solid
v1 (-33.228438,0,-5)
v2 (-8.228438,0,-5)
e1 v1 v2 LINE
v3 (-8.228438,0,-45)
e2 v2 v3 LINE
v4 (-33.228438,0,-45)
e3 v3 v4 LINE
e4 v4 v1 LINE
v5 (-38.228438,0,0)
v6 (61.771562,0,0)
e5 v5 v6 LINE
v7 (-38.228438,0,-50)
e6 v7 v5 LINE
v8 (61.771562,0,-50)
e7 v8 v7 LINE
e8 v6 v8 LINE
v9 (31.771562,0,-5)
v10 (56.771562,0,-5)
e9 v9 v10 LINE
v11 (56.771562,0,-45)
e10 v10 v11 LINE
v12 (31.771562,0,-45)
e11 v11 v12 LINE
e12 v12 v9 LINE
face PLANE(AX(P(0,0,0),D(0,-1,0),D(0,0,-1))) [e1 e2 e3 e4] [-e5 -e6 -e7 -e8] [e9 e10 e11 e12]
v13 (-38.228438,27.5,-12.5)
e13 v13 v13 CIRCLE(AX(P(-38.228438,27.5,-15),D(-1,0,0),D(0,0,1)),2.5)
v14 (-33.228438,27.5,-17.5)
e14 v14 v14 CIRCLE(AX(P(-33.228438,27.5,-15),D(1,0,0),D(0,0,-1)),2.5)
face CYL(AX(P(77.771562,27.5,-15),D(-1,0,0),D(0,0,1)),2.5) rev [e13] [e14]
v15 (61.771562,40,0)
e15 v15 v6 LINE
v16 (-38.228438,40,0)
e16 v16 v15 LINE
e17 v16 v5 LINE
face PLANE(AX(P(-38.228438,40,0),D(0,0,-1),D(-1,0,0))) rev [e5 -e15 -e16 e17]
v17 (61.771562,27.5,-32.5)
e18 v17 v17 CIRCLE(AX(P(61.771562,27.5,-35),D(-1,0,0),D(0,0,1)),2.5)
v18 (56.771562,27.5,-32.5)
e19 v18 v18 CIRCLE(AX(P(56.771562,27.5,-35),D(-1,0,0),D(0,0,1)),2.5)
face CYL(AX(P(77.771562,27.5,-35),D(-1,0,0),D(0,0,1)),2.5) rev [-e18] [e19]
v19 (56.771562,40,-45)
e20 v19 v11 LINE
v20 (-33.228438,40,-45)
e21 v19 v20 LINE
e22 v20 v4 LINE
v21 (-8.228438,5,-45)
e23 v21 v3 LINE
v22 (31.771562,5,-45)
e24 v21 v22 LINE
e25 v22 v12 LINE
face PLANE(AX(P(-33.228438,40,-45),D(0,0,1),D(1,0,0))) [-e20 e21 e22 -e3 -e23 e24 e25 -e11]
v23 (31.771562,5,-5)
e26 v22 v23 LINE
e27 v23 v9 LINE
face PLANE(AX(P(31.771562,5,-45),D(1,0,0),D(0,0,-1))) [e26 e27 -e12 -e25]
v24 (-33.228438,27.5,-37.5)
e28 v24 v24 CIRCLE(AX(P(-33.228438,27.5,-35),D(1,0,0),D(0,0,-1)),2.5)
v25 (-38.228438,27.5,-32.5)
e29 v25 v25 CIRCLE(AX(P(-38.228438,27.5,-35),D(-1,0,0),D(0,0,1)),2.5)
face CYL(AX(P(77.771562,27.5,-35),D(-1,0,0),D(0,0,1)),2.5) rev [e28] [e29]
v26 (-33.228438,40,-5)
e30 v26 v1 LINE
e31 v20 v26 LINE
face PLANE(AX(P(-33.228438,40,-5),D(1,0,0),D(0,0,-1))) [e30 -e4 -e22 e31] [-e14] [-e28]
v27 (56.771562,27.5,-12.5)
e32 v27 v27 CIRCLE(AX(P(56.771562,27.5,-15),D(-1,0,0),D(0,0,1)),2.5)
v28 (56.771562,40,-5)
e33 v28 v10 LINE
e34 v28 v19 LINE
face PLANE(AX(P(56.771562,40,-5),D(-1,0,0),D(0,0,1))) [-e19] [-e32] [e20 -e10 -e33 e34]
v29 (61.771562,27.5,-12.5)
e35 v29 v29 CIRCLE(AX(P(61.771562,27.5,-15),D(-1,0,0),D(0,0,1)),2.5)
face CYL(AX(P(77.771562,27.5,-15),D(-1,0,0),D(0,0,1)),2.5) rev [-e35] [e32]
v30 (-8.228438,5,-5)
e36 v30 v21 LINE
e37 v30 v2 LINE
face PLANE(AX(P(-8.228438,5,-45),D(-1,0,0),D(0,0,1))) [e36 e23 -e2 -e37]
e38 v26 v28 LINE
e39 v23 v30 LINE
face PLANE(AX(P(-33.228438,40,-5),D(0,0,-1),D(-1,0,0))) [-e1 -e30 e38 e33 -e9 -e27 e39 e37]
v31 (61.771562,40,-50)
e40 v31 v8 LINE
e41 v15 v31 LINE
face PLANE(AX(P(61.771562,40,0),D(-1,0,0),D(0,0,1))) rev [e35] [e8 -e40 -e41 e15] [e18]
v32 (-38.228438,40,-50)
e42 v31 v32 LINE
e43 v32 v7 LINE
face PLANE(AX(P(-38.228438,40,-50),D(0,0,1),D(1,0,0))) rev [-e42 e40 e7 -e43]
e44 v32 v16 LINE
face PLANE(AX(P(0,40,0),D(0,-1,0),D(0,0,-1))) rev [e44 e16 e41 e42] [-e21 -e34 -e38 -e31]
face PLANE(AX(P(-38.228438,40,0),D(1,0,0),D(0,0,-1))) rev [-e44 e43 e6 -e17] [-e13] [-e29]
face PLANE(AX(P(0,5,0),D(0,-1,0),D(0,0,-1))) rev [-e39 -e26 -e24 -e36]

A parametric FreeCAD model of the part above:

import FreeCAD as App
import Part
import Sketcher
Q = App.Units.Quantity

doc = App.newDocument("Part")
body = doc.addObject("PartDesign::Body", "Body")

sketch1 = body.newObject("Sketcher::SketchObject", "Sketch")
sketch1.AttachmentSupport = (doc.getObject("XZ_Plane"), [""])
sketch1.MapMode = "FlatFace"
sketch1.addGeometry([
    Part.LineSegment(App.Vector(-38, -50, 0), App.Vector(-38, 0, 0)),
    Part.LineSegment(App.Vector(-38, 0, 0), App.Vector(62, 0, 0)),
    Part.LineSegment(App.Vector(62, 0, 0), App.Vector(62, -50, 0)),
    Part.LineSegment(App.Vector(62, -50, 0), App.Vector(-38, -50, 0)),
    Part.LineSegment(App.Vector(57, -5, 0), App.Vector(-33, -5, 0)),
    Part.LineSegment(App.Vector(-33, -5, 0), App.Vector(-33, -45, 0)),
    Part.LineSegment(App.Vector(-33, -45, 0), App.Vector(57, -45, 0)),
    Part.LineSegment(App.Vector(57, -45, 0), App.Vector(57, -5, 0)),
], False)
sketch1.addConstraint([
    Sketcher.Constraint("Coincident", 0, 2, 1, 1),
    Sketcher.Constraint("Coincident", 1, 2, 2, 1),
    Sketcher.Constraint("Coincident", 2, 2, 3, 1),
    Sketcher.Constraint("Coincident", 3, 2, 0, 1),
    Sketcher.Constraint("Coincident", 4, 2, 5, 1),
    Sketcher.Constraint("Coincident", 5, 2, 6, 1),
    Sketcher.Constraint("Coincident", 6, 2, 7, 1),
    Sketcher.Constraint("Coincident", 7, 2, 4, 1),
    Sketcher.Constraint("Vertical", 0),
    Sketcher.Constraint("Horizontal", 1),
    Sketcher.Constraint("Vertical", 2),
    Sketcher.Constraint("Horizontal", 3),
    Sketcher.Constraint("Horizontal", 4),
    Sketcher.Constraint("Vertical", 5),
    Sketcher.Constraint("Horizontal", 6),
    Sketcher.Constraint("Vertical", 7),
    Sketcher.Constraint("PointOnObject", 0, 2, -1),
    Sketcher.Constraint("DistanceX", 1, 1, 1, 2, Q("100 mm")),
    Sketcher.Constraint("DistanceX", 4, 2, 4, 1, Q("90 mm")),
    Sketcher.Constraint("DistanceY", 0, 1, 0, 2, Q("50 mm")),
    Sketcher.Constraint("DistanceY", 5, 2, 5, 1, Q("40 mm")),
    Sketcher.Constraint("DistanceY", 4, 2, -1, 1, Q("5 mm")),
    Sketcher.Constraint("DistanceX", 0, 2, 4, 2, Q("5 mm")),
    Sketcher.Constraint("DistanceX", 0, 2, -1, 1, Q("38.228438 mm")),
])
pad1 = body.newObject("PartDesign::Pad", "Pad")
pad1.Profile = sketch1
pad1.Length = 40
pad1.Reversed = True

sketch2 = body.newObject("Sketcher::SketchObject", "Sketch001")
sketch2.AttachmentSupport = (doc.getObject("XZ_Plane"), [""])
sketch2.MapMode = "FlatFace"
sketch2.addGeometry([
    Part.LineSegment(App.Vector(32, -45, 0), App.Vector(32, -5, 0)),
    Part.LineSegment(App.Vector(32, -5, 0), App.Vector(-8, -5, 0)),
    Part.LineSegment(App.Vector(-8, -5, 0), App.Vector(-8, -45, 0)),
    Part.LineSegment(App.Vector(-8, -45, 0), App.Vector(32, -45, 0)),
], False)
sketch2.addConstraint([
    Sketcher.Constraint("Coincident", 0, 2, 1, 1),
    Sketcher.Constraint("Coincident", 1, 2, 2, 1),
    Sketcher.Constraint("Coincident", 2, 2, 3, 1),
    Sketcher.Constraint("Coincident", 3, 2, 0, 1),
    Sketcher.Constraint("Vertical", 0),
    Sketcher.Constraint("Horizontal", 1),
    Sketcher.Constraint("Vertical", 2),
    Sketcher.Constraint("Horizontal", 3),
    Sketcher.Constraint("Equal", 3, 0),
    Sketcher.Constraint("DistanceX", 1, 2, 1, 1, Q("40 mm")),
    Sketcher.Constraint("DistanceY", 0, 2, -1, 1, Q("5 mm")),
    Sketcher.Constraint("DistanceX", -1, 1, 0, 2, Q("31.771562 mm")),
])
pad2 = body.newObject("PartDesign::Pad", "Pad001")
pad2.Profile = sketch2
pad2.Length = 5
pad2.Reversed = True

sketch3 = body.newObject("Sketcher::SketchObject", "Sketch002")
sketch3.AttachmentSupport = (doc.getObject("YZ_Plane"), [""])
sketch3.MapMode = "FlatFace"
sketch3.AttachmentOffset = App.Placement(App.Vector(0, 0, -38.228438), App.Rotation())
sketch3.addGeometry([
    Part.Circle(App.Vector(27.5, -35, 0), App.Vector(0, 0, 1), 2.5),
    Part.Circle(App.Vector(27.5, -15, 0), App.Vector(0, 0, 1), 2.5),
], False)
sketch3.addConstraint([
    Sketcher.Constraint("Equal", 0, 1),
    Sketcher.Constraint("Vertical", 0, 3, 1, 3),
    Sketcher.Constraint("Diameter", 0, Q("5 mm")),
    Sketcher.Constraint("DistanceY", 0, 3, -1, 1, Q("35 mm")),
    Sketcher.Constraint("DistanceY", 1, 3, -1, 1, Q("15 mm")),
    Sketcher.Constraint("DistanceX", -1, 1, 0, 3, Q("27.5 mm")),
])
pocket1 = body.newObject("PartDesign::Pocket", "Pocket")
pocket1.Profile = sketch3
pocket1.Length = 116
pocket1.Reversed = True

doc.recompute()
